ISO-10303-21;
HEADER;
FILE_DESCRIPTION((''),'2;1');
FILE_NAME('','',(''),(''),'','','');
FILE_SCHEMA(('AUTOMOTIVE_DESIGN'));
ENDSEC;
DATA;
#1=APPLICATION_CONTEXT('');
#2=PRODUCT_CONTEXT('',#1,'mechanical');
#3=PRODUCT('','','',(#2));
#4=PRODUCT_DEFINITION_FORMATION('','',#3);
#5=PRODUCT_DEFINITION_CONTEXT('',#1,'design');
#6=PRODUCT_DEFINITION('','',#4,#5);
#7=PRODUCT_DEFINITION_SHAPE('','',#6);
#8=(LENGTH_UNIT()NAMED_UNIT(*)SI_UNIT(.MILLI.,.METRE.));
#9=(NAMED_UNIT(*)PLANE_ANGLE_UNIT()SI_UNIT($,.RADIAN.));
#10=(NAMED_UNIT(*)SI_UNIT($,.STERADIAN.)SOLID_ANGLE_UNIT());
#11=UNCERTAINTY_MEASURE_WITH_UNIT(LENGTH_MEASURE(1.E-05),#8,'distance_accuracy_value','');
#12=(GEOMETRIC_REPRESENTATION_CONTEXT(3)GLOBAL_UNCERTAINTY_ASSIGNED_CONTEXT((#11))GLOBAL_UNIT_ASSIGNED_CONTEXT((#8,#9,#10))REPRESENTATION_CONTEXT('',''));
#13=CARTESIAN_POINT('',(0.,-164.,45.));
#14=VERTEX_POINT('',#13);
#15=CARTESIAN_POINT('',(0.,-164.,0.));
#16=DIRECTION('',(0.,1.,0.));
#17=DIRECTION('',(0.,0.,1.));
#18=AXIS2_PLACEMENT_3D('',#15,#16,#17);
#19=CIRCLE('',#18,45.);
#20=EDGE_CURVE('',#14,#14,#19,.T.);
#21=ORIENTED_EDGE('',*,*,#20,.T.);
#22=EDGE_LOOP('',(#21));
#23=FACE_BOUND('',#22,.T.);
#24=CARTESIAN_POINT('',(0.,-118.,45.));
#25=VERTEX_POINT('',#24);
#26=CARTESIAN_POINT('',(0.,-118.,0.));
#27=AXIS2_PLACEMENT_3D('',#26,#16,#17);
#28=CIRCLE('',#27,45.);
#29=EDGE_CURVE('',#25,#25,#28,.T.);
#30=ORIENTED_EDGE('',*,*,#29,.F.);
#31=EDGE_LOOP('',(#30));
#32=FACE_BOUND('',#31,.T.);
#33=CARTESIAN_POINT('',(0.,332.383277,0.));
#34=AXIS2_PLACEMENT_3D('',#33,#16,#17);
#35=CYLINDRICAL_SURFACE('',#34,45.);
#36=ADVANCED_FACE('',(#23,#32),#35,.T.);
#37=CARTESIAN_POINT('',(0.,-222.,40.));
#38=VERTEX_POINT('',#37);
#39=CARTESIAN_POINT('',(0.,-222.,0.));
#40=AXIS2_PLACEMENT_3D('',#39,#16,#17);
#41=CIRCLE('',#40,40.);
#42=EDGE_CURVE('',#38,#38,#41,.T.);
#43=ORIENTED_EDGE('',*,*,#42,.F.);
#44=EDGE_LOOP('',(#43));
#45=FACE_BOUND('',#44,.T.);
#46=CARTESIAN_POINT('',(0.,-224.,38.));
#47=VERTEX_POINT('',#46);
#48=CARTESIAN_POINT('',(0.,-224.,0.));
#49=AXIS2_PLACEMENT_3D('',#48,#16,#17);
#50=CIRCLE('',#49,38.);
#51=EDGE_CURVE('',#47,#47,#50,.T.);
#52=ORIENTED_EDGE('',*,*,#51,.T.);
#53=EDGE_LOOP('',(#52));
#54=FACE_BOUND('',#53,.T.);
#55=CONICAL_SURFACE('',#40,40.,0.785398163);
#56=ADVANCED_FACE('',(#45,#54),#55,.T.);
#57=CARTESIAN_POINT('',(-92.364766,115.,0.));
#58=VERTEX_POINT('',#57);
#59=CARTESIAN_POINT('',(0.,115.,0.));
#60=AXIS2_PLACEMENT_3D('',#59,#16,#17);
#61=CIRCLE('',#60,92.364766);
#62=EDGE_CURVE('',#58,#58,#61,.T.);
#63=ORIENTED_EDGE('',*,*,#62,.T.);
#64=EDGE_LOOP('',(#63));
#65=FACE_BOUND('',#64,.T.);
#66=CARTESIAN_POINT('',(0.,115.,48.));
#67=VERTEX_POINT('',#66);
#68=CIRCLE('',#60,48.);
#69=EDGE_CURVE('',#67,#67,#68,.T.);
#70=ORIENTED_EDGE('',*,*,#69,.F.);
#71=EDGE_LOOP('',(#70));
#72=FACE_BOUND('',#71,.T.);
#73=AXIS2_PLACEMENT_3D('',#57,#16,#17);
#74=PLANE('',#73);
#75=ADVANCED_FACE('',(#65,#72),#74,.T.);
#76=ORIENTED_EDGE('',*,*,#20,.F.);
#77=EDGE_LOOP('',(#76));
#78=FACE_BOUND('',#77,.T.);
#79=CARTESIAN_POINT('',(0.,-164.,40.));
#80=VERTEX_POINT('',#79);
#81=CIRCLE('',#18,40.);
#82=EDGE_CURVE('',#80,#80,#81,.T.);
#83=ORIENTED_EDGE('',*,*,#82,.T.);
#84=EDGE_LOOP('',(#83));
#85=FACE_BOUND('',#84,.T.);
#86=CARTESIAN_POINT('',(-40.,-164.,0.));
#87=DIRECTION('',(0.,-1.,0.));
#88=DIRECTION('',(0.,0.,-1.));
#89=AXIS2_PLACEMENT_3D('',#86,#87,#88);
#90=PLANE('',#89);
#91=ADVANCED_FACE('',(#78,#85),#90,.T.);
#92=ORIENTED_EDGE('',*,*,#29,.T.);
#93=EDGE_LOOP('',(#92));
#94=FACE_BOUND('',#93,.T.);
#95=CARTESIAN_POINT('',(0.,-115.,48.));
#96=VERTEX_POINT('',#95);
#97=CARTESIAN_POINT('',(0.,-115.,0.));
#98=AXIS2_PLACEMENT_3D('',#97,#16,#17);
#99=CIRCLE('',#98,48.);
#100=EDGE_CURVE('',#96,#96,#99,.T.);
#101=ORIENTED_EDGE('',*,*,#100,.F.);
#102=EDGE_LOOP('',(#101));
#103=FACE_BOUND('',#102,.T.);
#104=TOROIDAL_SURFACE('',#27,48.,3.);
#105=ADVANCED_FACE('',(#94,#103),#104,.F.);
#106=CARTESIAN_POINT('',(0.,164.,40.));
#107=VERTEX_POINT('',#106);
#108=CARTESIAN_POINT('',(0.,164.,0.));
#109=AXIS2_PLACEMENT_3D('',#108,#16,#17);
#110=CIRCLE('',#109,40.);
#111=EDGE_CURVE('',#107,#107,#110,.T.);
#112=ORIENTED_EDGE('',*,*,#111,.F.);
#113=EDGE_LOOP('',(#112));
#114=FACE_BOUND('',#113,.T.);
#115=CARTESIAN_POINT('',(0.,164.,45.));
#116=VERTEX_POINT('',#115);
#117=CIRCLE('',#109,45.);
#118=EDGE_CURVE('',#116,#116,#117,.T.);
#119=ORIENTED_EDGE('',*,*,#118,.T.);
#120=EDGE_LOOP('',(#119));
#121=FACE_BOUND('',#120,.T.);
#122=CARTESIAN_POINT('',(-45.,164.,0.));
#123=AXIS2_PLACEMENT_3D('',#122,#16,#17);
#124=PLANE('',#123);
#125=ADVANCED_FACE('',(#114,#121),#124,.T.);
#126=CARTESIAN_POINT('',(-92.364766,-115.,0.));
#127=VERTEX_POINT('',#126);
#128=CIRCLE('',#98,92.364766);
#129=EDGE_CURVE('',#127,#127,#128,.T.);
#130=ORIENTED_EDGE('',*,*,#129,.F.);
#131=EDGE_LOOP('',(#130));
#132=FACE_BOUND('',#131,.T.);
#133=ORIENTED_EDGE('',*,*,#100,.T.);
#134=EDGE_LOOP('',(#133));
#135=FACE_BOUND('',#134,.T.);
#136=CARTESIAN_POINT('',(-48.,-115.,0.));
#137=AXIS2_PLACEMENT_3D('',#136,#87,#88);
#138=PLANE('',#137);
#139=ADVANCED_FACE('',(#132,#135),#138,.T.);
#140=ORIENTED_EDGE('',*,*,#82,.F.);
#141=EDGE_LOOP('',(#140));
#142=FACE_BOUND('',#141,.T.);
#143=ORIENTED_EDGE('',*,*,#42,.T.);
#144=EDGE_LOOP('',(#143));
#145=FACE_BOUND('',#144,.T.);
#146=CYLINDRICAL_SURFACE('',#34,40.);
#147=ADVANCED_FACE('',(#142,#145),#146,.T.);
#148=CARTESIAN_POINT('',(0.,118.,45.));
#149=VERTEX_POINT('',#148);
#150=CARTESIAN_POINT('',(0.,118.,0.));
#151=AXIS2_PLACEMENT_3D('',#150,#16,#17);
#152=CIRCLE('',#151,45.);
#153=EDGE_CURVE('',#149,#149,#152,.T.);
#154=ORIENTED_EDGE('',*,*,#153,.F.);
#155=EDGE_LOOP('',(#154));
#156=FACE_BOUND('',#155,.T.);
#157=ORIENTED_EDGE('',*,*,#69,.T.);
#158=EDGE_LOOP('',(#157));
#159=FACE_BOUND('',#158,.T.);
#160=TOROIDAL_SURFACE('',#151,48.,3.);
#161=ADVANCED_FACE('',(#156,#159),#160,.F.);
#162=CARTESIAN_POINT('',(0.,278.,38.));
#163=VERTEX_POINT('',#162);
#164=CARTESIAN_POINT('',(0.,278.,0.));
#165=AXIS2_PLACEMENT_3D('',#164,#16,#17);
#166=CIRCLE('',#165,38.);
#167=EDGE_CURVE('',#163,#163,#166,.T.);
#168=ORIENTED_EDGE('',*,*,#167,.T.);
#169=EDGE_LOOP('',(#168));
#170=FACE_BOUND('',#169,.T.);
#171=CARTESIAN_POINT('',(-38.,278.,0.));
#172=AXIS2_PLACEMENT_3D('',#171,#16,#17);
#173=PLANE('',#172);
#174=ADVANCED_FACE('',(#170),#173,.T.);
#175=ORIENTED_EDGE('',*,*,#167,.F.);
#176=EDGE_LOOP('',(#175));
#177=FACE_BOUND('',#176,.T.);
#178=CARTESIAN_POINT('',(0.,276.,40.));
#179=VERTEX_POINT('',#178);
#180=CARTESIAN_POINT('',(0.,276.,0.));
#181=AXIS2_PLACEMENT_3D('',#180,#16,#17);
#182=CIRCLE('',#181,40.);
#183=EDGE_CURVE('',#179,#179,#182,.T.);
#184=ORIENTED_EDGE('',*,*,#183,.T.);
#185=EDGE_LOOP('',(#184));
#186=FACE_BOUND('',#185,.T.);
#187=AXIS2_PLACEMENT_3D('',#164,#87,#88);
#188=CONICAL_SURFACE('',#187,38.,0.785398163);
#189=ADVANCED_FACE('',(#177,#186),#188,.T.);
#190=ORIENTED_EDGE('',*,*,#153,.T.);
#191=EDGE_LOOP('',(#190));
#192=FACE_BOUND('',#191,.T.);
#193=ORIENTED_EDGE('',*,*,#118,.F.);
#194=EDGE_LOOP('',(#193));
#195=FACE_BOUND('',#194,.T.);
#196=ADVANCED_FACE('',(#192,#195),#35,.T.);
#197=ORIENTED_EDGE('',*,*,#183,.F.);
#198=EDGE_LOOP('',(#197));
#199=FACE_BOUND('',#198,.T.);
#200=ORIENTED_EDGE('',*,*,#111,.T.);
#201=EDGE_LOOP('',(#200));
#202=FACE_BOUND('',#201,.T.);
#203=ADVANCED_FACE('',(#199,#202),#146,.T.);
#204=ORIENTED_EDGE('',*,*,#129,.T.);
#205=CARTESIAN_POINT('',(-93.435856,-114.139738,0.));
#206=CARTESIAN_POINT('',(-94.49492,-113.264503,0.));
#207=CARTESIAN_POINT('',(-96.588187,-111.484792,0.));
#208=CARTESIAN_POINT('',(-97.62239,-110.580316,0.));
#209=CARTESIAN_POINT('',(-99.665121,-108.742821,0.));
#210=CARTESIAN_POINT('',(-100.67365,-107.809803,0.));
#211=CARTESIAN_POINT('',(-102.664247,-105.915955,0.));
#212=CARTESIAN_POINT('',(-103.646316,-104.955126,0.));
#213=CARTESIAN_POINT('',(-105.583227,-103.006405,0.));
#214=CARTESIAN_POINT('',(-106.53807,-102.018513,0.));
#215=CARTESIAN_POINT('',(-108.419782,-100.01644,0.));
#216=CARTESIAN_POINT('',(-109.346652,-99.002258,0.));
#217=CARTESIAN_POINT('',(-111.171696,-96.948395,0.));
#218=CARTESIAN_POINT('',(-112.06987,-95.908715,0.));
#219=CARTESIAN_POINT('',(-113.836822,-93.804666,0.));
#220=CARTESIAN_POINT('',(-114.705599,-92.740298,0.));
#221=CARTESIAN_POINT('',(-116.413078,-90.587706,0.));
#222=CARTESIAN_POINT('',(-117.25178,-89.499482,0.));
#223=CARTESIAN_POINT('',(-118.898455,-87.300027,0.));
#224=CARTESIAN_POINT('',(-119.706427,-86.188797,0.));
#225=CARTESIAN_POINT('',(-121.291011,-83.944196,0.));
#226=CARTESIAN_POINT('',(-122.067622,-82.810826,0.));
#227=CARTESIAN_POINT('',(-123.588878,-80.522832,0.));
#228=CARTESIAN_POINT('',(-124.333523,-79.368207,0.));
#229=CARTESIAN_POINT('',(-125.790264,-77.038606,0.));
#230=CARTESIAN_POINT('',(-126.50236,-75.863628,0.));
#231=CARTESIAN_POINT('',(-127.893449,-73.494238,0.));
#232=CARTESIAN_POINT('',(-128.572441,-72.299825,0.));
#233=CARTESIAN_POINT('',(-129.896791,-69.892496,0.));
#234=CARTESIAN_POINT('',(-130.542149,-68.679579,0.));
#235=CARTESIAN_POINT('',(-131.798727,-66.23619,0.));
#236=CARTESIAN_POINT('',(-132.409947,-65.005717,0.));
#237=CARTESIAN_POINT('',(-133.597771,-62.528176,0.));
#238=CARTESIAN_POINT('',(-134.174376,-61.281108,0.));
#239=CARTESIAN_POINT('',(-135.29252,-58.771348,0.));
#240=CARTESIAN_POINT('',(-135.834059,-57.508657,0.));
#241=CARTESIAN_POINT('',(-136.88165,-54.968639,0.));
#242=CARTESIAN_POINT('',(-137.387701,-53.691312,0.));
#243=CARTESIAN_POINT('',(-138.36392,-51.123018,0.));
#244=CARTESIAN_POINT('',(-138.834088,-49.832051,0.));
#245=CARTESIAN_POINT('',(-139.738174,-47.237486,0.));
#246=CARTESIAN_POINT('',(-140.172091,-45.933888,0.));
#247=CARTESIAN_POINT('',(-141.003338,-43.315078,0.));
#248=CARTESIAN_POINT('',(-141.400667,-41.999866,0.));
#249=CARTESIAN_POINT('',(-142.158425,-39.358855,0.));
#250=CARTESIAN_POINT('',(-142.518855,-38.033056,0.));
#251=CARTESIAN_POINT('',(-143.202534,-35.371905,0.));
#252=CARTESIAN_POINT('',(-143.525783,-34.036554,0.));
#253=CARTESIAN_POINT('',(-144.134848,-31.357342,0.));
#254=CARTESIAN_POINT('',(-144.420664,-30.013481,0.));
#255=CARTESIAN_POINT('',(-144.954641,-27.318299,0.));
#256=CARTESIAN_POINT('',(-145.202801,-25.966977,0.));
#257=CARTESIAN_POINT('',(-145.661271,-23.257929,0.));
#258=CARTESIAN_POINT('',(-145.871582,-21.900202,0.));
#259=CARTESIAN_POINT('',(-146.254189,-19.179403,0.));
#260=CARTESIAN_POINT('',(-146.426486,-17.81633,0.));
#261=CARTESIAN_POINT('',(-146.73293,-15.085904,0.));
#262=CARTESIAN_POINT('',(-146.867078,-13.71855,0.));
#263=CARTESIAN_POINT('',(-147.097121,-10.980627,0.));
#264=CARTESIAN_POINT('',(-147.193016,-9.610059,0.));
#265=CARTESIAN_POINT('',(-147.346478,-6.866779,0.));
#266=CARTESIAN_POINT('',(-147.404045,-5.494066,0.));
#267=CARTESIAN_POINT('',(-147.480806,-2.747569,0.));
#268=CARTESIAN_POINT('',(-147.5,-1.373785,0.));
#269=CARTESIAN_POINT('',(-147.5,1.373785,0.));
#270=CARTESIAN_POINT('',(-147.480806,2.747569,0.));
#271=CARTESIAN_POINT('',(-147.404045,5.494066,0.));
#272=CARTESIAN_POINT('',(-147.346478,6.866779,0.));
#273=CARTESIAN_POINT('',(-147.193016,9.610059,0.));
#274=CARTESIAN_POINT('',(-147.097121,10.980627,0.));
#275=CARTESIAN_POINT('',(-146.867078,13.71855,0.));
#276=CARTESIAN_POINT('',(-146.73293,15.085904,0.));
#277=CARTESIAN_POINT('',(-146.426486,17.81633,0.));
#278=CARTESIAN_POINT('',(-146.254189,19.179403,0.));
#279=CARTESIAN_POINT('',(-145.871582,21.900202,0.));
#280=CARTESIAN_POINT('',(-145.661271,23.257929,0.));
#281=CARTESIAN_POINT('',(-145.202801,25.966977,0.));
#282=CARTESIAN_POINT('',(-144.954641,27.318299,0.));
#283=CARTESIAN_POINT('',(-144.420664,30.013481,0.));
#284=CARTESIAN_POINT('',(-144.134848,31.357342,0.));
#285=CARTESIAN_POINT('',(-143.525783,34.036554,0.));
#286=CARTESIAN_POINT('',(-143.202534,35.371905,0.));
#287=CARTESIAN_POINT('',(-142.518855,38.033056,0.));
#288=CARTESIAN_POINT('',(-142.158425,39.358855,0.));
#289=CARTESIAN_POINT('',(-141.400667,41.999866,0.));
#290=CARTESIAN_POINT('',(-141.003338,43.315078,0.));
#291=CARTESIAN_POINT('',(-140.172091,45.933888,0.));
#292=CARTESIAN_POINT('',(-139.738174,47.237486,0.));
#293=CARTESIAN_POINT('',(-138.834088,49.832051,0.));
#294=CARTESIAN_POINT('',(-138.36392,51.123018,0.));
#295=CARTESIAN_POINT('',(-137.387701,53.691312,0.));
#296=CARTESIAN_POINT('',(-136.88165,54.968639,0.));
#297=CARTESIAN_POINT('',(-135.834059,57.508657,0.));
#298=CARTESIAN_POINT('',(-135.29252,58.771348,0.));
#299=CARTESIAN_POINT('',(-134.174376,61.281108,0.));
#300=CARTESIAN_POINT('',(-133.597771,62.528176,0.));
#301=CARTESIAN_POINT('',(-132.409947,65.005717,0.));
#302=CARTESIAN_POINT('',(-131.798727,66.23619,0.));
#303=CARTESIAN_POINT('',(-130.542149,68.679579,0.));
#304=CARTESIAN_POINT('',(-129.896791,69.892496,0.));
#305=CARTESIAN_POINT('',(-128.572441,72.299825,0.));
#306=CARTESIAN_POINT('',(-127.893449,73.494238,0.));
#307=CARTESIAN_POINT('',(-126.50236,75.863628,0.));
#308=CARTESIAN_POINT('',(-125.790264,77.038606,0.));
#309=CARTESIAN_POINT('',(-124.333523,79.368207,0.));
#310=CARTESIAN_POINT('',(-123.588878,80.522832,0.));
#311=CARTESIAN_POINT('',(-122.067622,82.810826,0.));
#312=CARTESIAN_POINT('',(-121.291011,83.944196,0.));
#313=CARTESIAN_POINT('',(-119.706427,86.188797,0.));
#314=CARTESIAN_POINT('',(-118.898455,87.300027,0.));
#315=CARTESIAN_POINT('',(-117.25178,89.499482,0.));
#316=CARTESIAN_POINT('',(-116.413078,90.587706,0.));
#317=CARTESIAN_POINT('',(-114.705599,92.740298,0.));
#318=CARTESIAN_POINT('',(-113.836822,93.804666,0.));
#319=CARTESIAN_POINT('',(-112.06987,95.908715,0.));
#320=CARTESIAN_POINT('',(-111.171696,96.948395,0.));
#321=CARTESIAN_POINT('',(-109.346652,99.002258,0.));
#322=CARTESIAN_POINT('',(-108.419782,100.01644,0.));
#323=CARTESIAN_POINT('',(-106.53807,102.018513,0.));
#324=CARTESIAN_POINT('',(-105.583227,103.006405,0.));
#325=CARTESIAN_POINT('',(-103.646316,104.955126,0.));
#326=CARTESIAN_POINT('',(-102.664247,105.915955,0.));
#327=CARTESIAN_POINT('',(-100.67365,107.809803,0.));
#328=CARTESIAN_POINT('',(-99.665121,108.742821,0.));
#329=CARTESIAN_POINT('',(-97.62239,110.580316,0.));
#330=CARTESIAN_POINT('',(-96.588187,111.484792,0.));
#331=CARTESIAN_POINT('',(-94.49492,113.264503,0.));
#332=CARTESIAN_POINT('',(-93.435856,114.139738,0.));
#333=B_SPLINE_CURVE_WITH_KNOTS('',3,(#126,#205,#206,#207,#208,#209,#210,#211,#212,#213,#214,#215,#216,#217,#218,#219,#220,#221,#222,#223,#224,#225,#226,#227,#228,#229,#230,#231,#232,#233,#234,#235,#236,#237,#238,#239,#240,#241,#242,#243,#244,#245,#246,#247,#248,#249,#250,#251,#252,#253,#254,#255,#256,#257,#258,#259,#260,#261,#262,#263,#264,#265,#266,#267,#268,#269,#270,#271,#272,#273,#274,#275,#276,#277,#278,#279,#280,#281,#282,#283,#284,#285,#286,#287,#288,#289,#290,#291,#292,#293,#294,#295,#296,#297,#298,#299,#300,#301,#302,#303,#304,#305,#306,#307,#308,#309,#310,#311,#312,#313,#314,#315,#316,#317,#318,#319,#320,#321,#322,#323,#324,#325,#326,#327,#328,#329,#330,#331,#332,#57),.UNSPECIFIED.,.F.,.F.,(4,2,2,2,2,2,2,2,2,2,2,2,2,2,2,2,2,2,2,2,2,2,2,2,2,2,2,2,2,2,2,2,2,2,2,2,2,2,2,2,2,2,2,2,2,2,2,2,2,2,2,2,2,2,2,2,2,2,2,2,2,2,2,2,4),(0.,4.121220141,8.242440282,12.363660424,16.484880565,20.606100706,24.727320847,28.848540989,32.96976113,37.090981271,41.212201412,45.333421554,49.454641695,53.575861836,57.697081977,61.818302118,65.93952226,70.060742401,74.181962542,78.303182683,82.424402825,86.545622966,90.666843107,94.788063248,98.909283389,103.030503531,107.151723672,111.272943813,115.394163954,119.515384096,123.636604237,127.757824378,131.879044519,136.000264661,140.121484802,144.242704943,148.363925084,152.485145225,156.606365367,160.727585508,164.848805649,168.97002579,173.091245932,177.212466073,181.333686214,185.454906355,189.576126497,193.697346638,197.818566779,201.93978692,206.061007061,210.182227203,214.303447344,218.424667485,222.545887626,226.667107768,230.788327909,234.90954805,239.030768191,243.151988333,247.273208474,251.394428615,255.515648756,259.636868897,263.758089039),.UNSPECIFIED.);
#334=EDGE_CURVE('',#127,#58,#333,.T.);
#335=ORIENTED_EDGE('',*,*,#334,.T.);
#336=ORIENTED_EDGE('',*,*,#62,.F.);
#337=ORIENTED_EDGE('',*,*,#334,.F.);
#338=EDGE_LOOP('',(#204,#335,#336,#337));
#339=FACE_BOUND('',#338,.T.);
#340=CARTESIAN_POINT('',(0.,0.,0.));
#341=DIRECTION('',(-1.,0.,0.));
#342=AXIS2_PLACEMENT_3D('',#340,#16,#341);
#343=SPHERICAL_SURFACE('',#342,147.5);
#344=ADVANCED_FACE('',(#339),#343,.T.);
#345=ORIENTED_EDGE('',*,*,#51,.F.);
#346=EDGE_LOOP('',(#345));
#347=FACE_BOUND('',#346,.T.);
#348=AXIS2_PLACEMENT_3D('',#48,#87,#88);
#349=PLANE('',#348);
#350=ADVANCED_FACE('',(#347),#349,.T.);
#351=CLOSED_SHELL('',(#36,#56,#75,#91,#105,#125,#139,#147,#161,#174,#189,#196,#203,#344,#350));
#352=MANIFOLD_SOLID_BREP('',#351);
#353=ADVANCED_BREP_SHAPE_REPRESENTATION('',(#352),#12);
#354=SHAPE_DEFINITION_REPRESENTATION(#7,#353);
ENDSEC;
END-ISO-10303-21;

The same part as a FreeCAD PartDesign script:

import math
import FreeCAD as App
import Part
import Sketcher

doc = App.newDocument("Part")
body = doc.addObject("PartDesign::Body", "Body")

# Sketch on XY plane
sketch1 = doc.addObject("Sketcher::SketchObject", "Sketch")
body.addObject(sketch1)
sketch1.AttachmentSupport = (doc.XY_Plane, [""])
sketch1.MapMode = "FlatFace"
sketch1.addGeometry([
    Part.LineSegment(App.Vector(-48, 115, 0), App.Vector(-92.364766, 115, 0)),  # 0
    Part.ArcOfCircle(Part.Circle(App.Vector(0, 0, 0), App.Vector(0, 0, 1), 147.5), math.radians(128.770451), math.radians(231.229549)),  # 1
    Part.LineSegment(App.Vector(-92.364766, -115, 0), App.Vector(-48, -115, 0)),  # 2
    Part.ArcOfCircle(Part.Circle(App.Vector(-48, -118, 0), App.Vector(0, 0, 1), 3), math.radians(0), math.radians(90)),  # 3
    Part.LineSegment(App.Vector(-45, -118, 0), App.Vector(-45, -164, 0)),  # 4
    Part.LineSegment(App.Vector(-45, -164, 0), App.Vector(-40, -164, 0)),  # 5
    Part.LineSegment(App.Vector(-40, -164, 0), App.Vector(-40, -222, 0)),  # 6
    Part.LineSegment(App.Vector(-40, -222, 0), App.Vector(-38, -224, 0)),  # 7
    Part.LineSegment(App.Vector(-38, -224, 0), App.Vector(0, -224, 0)),  # 8
    Part.LineSegment(App.Vector(0, -224, 0), App.Vector(0, 278, 0)),  # 9
    Part.LineSegment(App.Vector(0, 278, 0), App.Vector(-38, 278, 0)),  # 10
    Part.LineSegment(App.Vector(-38, 278, 0), App.Vector(-40, 276, 0)),  # 11
    Part.LineSegment(App.Vector(-40, 276, 0), App.Vector(-40, 164, 0)),  # 12
    Part.LineSegment(App.Vector(-40, 164, 0), App.Vector(-45, 164, 0)),  # 13
    Part.LineSegment(App.Vector(-45, 164, 0), App.Vector(-45, 118, 0)),  # 14
    Part.ArcOfCircle(Part.Circle(App.Vector(-48, 118, 0), App.Vector(0, 0, 1), 3), math.radians(-90), math.radians(0)),  # 15
], False)
sketch1.addConstraint([
    Sketcher.Constraint("Coincident", 0, 2, 1, 1),
    Sketcher.Constraint("Coincident", 1, 2, 2, 1),
    Sketcher.Constraint("Tangent", 2, 2, 3, 2),
    Sketcher.Constraint("Tangent", 3, 1, 4, 1),
    Sketcher.Constraint("Coincident", 4, 2, 5, 1),
    Sketcher.Constraint("Coincident", 5, 2, 6, 1),
    Sketcher.Constraint("Coincident", 6, 2, 7, 1),
    Sketcher.Constraint("Coincident", 7, 2, 8, 1),
    Sketcher.Constraint("Coincident", 8, 2, 9, 1),
    Sketcher.Constraint("Coincident", 9, 2, 10, 1),
    Sketcher.Constraint("Coincident", 10, 2, 11, 1),
    Sketcher.Constraint("Coincident", 11, 2, 12, 1),
    Sketcher.Constraint("Coincident", 12, 2, 13, 1),
    Sketcher.Constraint("Coincident", 13, 2, 14, 1),
    Sketcher.Constraint("Tangent", 14, 2, 15, 2),
    Sketcher.Constraint("Tangent", 15, 1, 0, 1),
    Sketcher.Constraint("Horizontal", 0),
    Sketcher.Constraint("Horizontal", 2),
    Sketcher.Constraint("Vertical", 4),
    Sketcher.Constraint("Horizontal", 5),
    Sketcher.Constraint("Vertical", 6),
    Sketcher.Constraint("Horizontal", 8),
    Sketcher.Constraint("Vertical", 9),
    Sketcher.Constraint("Horizontal", 10),
    Sketcher.Constraint("Vertical", 12),
    Sketcher.Constraint("Horizontal", 13),
    Sketcher.Constraint("Vertical", 14),
    Sketcher.Constraint("Coincident", 1, 3, -1, 1),
    Sketcher.Constraint("Equal", 3, 15),
    Sketcher.Constraint("Symmetric", 3, 3, 15, 3, -1),
    Sketcher.Constraint("Symmetric", 5, 2, 12, 2, -1),
    Sketcher.Constraint("PointOnObject", 8, 2, -2),
    Sketcher.Constraint("Perpendicular", 7, 11),
    Sketcher.Constraint("Vertical", 7, 2, 10, 2),
    Sketcher.Constraint("Equal", 7, 11),
    Sketcher.Constraint("Radius", 3, 3.0),
    Sketcher.Constraint("Radius", 1, 147.5),
    Sketcher.Constraint("DistanceX", 5, 1, 5, 2, 5.0),
    Sketcher.Constraint("DistanceX", 8, 1, 8, 2, 38.0),
    Sketcher.Constraint("DistanceY", 4, 2, 4, 1, 46.0),
    Sketcher.Constraint("DistanceY", 6, 2, 6, 1, 58.0),
    Sketcher.Constraint("DistanceY", 9, 1, 9, 2, 502.0),
    Sketcher.Constraint("DistanceY", 12, 2, 12, 1, 112.0),
    Sketcher.Constraint("DistanceX", 3, 3, -1, 1, 48.0),
])
revolution = doc.addObject("PartDesign::Revolution", "Revolution")
body.addObject(revolution)
revolution.Profile = sketch1
revolution.ReferenceAxis = (sketch1, ["V_Axis"])
revolution.Angle = 360

doc.recompute()
